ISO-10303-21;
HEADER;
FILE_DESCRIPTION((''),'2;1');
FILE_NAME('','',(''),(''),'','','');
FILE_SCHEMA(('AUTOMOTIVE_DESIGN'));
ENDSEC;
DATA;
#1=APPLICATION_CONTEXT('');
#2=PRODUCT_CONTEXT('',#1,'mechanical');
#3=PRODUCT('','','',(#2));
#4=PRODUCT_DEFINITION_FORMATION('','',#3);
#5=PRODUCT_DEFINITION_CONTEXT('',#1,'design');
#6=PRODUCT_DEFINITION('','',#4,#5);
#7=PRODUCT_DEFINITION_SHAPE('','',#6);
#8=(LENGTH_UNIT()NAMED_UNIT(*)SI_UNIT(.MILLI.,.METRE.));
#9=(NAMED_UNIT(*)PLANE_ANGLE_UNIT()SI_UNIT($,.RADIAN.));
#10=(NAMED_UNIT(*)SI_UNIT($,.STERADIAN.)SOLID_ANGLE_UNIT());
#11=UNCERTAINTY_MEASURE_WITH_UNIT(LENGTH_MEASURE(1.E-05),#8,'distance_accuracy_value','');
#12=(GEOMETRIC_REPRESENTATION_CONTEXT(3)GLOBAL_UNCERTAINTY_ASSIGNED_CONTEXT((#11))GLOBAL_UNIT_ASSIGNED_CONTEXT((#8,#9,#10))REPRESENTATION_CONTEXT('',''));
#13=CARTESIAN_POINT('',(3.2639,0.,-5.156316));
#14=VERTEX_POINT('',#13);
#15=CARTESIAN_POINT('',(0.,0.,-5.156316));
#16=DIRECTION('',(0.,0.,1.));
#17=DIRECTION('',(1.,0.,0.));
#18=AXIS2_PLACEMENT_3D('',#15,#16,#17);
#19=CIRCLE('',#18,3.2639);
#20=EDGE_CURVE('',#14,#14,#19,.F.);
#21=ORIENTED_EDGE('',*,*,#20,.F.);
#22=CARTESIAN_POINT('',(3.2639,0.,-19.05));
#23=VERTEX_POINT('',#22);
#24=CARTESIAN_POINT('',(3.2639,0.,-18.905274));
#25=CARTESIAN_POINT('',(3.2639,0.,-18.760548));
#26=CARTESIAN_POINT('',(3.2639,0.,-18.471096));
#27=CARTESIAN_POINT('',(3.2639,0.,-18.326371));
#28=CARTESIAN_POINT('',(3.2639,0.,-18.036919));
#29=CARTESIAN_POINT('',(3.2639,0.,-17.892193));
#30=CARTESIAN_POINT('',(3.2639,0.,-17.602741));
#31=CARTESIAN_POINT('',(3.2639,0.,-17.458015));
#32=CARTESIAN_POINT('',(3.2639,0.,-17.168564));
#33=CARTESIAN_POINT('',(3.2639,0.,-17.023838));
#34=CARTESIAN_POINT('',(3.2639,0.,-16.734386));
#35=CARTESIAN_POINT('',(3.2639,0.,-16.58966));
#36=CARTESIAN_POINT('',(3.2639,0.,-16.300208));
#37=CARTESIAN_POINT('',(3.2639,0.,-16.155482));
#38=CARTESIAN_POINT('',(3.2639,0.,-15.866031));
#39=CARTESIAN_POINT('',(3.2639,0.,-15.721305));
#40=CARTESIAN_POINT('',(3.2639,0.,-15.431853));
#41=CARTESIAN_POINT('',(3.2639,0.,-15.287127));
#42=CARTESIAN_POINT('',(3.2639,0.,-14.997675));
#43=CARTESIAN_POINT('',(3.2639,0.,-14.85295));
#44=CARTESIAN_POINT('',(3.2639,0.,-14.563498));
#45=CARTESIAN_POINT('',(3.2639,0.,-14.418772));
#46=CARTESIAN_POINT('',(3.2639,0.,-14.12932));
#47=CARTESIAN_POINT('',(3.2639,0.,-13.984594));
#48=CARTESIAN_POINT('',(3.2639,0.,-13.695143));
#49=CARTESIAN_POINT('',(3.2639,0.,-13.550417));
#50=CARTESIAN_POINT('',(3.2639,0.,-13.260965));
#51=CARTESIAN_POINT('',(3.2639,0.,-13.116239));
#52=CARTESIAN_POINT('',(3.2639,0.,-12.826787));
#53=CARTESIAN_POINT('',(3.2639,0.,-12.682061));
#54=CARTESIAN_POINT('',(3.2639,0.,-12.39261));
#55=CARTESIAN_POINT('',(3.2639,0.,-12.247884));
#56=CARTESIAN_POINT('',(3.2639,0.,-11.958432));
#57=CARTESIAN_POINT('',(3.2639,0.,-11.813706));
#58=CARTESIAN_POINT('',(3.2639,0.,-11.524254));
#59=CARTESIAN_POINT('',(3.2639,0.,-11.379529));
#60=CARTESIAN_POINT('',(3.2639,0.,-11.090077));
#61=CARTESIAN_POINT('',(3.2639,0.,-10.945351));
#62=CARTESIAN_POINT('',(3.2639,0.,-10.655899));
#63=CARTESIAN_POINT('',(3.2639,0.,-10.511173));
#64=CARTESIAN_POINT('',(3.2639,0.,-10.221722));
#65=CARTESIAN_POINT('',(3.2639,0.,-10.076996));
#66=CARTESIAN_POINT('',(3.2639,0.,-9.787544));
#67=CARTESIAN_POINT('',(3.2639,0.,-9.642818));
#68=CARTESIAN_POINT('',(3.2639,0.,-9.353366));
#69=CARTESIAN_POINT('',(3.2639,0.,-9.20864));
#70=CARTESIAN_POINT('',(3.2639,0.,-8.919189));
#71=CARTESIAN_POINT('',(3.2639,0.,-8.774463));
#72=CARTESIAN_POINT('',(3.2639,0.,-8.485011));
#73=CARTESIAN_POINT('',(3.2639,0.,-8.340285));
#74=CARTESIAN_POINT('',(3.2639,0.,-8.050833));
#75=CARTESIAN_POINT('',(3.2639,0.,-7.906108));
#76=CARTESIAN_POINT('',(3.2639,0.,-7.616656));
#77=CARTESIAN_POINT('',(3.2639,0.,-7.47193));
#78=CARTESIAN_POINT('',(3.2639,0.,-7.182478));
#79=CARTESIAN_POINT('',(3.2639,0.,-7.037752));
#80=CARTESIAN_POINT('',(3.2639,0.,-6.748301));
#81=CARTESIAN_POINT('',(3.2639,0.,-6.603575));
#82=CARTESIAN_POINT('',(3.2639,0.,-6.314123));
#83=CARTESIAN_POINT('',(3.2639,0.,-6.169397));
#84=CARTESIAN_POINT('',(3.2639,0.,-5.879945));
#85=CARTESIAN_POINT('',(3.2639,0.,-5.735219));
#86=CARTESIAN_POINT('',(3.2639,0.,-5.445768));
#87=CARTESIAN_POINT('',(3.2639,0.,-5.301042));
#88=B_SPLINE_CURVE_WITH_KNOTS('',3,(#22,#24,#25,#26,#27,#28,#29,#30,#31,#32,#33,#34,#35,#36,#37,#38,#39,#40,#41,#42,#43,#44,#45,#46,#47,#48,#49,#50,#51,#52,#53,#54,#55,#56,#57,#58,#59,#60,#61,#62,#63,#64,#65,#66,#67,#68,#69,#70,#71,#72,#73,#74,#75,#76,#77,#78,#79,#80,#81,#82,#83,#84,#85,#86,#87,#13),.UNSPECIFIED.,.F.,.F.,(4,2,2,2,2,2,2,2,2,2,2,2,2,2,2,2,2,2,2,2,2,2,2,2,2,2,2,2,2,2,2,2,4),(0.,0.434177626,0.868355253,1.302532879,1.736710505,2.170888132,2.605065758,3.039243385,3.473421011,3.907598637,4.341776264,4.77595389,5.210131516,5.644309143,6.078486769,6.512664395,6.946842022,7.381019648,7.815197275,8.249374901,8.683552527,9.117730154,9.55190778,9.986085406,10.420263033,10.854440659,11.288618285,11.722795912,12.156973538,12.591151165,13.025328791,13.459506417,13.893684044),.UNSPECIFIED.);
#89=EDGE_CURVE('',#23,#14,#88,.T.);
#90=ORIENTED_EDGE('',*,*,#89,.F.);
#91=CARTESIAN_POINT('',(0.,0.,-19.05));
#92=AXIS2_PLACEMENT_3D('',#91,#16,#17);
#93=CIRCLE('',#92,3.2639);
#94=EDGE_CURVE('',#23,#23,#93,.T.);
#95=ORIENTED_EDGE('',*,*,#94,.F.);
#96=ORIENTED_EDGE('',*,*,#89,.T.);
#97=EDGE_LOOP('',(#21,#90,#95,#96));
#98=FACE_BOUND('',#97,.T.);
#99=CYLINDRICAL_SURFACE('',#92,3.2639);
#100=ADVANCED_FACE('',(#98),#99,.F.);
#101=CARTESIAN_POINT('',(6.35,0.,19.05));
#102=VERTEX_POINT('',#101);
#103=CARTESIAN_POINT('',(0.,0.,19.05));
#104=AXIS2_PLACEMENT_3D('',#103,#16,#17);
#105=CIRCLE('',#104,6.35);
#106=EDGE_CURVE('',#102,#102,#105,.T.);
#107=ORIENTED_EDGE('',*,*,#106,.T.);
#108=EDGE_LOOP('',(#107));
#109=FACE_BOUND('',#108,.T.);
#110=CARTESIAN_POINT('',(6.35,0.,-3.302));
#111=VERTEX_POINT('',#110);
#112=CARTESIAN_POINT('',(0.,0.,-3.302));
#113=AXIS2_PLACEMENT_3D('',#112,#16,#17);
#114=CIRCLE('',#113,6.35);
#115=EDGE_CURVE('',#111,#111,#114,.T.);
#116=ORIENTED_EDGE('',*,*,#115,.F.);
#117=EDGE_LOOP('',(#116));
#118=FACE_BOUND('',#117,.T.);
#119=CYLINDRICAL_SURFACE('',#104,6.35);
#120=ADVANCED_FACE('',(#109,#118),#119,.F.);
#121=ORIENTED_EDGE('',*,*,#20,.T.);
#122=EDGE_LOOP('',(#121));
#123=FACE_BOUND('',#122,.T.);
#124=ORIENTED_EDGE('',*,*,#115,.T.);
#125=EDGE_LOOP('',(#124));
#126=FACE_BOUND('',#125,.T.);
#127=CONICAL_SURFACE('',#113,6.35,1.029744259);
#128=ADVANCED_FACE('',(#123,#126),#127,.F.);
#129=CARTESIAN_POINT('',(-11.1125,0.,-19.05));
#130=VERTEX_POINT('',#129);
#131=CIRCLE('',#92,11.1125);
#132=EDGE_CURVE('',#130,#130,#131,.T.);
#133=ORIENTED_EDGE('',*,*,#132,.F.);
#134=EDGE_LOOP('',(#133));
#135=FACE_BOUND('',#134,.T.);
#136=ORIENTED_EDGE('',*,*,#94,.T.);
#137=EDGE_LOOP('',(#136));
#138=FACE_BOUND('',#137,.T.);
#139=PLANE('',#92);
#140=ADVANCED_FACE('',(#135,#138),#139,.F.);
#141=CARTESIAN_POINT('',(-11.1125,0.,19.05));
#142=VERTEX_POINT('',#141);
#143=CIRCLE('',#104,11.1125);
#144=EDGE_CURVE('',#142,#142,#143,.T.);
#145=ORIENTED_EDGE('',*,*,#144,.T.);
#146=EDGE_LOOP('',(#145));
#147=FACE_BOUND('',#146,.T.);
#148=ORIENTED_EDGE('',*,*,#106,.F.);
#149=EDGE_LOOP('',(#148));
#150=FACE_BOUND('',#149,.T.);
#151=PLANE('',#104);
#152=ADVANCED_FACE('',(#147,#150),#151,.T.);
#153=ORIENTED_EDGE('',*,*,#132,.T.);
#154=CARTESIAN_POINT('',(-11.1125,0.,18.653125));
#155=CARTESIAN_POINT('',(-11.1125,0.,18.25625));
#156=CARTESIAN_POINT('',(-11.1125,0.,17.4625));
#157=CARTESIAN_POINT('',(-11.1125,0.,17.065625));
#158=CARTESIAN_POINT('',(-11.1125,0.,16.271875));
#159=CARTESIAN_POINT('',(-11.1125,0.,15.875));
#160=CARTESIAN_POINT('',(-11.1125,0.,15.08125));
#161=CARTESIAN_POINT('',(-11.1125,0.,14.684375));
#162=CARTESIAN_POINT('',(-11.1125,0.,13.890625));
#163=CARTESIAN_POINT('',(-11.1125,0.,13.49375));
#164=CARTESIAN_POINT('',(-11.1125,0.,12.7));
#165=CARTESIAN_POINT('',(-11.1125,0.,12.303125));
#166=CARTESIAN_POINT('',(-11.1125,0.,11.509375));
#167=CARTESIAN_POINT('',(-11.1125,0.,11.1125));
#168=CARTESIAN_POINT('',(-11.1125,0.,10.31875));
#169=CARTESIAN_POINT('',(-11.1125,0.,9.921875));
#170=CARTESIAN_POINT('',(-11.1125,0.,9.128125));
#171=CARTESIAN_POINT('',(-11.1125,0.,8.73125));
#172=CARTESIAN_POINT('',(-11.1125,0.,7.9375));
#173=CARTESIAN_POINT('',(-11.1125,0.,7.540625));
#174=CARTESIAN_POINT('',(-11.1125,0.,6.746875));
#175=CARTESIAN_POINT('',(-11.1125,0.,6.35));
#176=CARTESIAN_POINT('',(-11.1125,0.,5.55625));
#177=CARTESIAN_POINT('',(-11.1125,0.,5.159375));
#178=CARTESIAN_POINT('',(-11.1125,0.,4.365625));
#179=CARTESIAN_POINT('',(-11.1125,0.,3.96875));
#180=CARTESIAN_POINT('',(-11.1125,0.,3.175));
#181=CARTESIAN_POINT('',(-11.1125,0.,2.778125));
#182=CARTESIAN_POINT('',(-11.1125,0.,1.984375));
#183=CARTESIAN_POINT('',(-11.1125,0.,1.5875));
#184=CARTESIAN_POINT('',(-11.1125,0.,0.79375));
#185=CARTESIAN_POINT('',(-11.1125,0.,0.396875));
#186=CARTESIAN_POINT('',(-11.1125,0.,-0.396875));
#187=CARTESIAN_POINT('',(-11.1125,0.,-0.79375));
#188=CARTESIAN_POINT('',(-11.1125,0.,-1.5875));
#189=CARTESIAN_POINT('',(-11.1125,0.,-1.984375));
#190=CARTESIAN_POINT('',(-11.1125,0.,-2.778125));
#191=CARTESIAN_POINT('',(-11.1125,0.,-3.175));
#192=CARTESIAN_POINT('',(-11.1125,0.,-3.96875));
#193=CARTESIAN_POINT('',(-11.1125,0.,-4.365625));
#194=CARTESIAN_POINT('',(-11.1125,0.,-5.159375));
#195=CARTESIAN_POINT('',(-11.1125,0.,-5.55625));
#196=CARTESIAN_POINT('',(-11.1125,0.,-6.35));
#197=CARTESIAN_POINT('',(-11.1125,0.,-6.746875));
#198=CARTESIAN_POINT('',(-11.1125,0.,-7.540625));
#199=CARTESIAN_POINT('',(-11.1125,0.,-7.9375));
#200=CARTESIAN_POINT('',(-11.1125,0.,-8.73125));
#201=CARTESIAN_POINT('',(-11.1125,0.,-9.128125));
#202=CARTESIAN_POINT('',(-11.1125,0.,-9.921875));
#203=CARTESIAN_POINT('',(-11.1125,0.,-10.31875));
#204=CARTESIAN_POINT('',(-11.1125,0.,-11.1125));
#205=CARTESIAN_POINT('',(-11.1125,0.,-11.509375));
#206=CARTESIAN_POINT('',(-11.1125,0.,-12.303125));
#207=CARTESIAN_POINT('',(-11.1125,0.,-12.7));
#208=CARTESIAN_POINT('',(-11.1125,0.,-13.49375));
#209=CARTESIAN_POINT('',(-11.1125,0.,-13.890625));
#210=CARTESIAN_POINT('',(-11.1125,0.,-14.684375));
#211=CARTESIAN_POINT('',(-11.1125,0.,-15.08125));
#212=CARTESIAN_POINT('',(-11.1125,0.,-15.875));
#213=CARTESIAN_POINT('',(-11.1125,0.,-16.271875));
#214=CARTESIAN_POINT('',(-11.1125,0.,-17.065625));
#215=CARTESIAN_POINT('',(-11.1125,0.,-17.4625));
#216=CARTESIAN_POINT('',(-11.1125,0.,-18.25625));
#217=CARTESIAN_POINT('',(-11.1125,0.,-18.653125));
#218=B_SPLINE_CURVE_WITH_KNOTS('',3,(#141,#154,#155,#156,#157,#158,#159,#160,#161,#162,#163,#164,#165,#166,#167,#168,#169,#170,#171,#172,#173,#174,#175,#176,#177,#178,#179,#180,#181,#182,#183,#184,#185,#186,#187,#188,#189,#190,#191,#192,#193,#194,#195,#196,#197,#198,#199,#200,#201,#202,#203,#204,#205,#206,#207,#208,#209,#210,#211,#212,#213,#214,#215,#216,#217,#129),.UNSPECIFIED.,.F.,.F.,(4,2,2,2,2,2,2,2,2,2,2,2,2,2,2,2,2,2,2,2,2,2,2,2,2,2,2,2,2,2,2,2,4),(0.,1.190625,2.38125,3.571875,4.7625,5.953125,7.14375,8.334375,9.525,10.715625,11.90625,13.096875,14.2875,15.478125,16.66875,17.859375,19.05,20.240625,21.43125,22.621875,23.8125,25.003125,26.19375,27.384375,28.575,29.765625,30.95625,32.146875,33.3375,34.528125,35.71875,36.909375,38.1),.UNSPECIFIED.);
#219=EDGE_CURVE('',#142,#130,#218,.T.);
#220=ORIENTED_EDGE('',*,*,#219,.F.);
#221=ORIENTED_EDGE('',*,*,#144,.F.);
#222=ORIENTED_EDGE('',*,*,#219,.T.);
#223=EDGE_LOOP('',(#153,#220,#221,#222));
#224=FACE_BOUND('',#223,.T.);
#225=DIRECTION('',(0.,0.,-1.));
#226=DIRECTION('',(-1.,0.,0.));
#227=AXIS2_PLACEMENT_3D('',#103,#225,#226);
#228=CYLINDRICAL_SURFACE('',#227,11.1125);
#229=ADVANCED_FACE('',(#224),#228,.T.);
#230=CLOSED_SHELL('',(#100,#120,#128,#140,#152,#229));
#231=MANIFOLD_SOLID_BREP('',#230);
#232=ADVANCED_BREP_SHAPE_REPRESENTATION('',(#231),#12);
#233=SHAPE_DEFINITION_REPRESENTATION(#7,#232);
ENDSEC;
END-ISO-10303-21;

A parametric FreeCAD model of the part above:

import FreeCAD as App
import Part
import Sketcher
from FreeCAD import Vector
Q = App.Units.Quantity

doc = App.newDocument("Part")
params = doc.addObject("Spreadsheet::Sheet", "Params")
for row, (alias, value) in enumerate([
    ("sketch1_diameter", "0.875 in"),
    ("pad1_length", "1.5 in"),
    ("sketch2_diameter", "0.5 in"),
    ("hole_diameter", "0.5 in"),
    ("hole_depth", "0.88 in"),
    ("sketch3_diameter", "0.257 in"),
], start=1):
    params.set(f"A{row}", alias)
    params.set(f"B{row}", "=" + value)
    params.setAlias(f"B{row}", alias)

body = doc.addObject("PartDesign::Body", "Body")

sketch1 = doc.addObject("Sketcher::SketchObject", "Sketch")
body.addObject(sketch1)
sketch1.AttachmentSupport = (doc.XY_Plane, [""])
sketch1.MapMode = "FlatFace"
sketch1.addGeometry(Part.Circle(Vector(0, 0, 0), Vector(0, 0, 1), 11), False)
sketch1.addConstraint([
    Sketcher.Constraint("Coincident", 0, 3, -1, 1),
    Sketcher.Constraint("Diameter", 0, Q("0.875 in")),
])
sketch1.setExpression("Constraints[1]", "Params.sketch1_diameter")
pad1 = doc.addObject("PartDesign::Pad", "Pad")
body.addObject(pad1)
pad1.Profile = sketch1
pad1.setExpression("Length", "Params.pad1_length")
pad1.Midplane = True

sketch2 = doc.addObject("Sketcher::SketchObject", "Sketch001")
body.addObject(sketch2)
sketch2.AttachmentSupport = (doc.XY_Plane, [""])
sketch2.MapMode = "FlatFace"
sketch2.AttachmentOffset = App.Placement(Vector(0, 0, 0.75 * 25.4), App.Rotation())
sketch2.addGeometry(Part.Circle(Vector(0, 0, 0), Vector(0, 0, 1), 6), False)
sketch2.addConstraint([
    Sketcher.Constraint("Coincident", 0, 3, -1, 1),
    Sketcher.Constraint("Diameter", 0, Q("0.5 in")),
])
sketch2.setExpression("Constraints[1]", "Params.sketch2_diameter")
doc.recompute()
hole = doc.addObject("PartDesign::Hole", "Hole")
body.addObject(hole)
hole.Profile = sketch2
hole.ThreadType = "None"
hole.setExpression("Diameter", "Params.hole_diameter")
hole.DepthType = "Dimension"
hole.setExpression("Depth", "Params.hole_depth")
hole.DrillPoint = "Angled"
hole.DrillPointAngle = 118

sketch3 = doc.addObject("Sketcher::SketchObject", "Sketch002")
body.addObject(sketch3)
sketch3.AttachmentSupport = (doc.XY_Plane, [""])
sketch3.MapMode = "FlatFace"
sketch3.AttachmentOffset = App.Placement(Vector(0, 0, 0.75 * 25.4), App.Rotation())
sketch3.addGeometry(Part.Circle(Vector(0, 0, 0), Vector(0, 0, 1), 3.3), False)
sketch3.addConstraint([
    Sketcher.Constraint("Coincident", 0, 3, -1, 1),
    Sketcher.Constraint("Diameter", 0, Q("0.257 in")),
])
sketch3.setExpression("Constraints[1]", "Params.sketch3_diameter")
pocket1 = doc.addObject("PartDesign::Pocket", "Pocket")
body.addObject(pocket1)
pocket1.Profile = sketch3
pocket1.Type = "ThroughAll"

doc.recompute()
